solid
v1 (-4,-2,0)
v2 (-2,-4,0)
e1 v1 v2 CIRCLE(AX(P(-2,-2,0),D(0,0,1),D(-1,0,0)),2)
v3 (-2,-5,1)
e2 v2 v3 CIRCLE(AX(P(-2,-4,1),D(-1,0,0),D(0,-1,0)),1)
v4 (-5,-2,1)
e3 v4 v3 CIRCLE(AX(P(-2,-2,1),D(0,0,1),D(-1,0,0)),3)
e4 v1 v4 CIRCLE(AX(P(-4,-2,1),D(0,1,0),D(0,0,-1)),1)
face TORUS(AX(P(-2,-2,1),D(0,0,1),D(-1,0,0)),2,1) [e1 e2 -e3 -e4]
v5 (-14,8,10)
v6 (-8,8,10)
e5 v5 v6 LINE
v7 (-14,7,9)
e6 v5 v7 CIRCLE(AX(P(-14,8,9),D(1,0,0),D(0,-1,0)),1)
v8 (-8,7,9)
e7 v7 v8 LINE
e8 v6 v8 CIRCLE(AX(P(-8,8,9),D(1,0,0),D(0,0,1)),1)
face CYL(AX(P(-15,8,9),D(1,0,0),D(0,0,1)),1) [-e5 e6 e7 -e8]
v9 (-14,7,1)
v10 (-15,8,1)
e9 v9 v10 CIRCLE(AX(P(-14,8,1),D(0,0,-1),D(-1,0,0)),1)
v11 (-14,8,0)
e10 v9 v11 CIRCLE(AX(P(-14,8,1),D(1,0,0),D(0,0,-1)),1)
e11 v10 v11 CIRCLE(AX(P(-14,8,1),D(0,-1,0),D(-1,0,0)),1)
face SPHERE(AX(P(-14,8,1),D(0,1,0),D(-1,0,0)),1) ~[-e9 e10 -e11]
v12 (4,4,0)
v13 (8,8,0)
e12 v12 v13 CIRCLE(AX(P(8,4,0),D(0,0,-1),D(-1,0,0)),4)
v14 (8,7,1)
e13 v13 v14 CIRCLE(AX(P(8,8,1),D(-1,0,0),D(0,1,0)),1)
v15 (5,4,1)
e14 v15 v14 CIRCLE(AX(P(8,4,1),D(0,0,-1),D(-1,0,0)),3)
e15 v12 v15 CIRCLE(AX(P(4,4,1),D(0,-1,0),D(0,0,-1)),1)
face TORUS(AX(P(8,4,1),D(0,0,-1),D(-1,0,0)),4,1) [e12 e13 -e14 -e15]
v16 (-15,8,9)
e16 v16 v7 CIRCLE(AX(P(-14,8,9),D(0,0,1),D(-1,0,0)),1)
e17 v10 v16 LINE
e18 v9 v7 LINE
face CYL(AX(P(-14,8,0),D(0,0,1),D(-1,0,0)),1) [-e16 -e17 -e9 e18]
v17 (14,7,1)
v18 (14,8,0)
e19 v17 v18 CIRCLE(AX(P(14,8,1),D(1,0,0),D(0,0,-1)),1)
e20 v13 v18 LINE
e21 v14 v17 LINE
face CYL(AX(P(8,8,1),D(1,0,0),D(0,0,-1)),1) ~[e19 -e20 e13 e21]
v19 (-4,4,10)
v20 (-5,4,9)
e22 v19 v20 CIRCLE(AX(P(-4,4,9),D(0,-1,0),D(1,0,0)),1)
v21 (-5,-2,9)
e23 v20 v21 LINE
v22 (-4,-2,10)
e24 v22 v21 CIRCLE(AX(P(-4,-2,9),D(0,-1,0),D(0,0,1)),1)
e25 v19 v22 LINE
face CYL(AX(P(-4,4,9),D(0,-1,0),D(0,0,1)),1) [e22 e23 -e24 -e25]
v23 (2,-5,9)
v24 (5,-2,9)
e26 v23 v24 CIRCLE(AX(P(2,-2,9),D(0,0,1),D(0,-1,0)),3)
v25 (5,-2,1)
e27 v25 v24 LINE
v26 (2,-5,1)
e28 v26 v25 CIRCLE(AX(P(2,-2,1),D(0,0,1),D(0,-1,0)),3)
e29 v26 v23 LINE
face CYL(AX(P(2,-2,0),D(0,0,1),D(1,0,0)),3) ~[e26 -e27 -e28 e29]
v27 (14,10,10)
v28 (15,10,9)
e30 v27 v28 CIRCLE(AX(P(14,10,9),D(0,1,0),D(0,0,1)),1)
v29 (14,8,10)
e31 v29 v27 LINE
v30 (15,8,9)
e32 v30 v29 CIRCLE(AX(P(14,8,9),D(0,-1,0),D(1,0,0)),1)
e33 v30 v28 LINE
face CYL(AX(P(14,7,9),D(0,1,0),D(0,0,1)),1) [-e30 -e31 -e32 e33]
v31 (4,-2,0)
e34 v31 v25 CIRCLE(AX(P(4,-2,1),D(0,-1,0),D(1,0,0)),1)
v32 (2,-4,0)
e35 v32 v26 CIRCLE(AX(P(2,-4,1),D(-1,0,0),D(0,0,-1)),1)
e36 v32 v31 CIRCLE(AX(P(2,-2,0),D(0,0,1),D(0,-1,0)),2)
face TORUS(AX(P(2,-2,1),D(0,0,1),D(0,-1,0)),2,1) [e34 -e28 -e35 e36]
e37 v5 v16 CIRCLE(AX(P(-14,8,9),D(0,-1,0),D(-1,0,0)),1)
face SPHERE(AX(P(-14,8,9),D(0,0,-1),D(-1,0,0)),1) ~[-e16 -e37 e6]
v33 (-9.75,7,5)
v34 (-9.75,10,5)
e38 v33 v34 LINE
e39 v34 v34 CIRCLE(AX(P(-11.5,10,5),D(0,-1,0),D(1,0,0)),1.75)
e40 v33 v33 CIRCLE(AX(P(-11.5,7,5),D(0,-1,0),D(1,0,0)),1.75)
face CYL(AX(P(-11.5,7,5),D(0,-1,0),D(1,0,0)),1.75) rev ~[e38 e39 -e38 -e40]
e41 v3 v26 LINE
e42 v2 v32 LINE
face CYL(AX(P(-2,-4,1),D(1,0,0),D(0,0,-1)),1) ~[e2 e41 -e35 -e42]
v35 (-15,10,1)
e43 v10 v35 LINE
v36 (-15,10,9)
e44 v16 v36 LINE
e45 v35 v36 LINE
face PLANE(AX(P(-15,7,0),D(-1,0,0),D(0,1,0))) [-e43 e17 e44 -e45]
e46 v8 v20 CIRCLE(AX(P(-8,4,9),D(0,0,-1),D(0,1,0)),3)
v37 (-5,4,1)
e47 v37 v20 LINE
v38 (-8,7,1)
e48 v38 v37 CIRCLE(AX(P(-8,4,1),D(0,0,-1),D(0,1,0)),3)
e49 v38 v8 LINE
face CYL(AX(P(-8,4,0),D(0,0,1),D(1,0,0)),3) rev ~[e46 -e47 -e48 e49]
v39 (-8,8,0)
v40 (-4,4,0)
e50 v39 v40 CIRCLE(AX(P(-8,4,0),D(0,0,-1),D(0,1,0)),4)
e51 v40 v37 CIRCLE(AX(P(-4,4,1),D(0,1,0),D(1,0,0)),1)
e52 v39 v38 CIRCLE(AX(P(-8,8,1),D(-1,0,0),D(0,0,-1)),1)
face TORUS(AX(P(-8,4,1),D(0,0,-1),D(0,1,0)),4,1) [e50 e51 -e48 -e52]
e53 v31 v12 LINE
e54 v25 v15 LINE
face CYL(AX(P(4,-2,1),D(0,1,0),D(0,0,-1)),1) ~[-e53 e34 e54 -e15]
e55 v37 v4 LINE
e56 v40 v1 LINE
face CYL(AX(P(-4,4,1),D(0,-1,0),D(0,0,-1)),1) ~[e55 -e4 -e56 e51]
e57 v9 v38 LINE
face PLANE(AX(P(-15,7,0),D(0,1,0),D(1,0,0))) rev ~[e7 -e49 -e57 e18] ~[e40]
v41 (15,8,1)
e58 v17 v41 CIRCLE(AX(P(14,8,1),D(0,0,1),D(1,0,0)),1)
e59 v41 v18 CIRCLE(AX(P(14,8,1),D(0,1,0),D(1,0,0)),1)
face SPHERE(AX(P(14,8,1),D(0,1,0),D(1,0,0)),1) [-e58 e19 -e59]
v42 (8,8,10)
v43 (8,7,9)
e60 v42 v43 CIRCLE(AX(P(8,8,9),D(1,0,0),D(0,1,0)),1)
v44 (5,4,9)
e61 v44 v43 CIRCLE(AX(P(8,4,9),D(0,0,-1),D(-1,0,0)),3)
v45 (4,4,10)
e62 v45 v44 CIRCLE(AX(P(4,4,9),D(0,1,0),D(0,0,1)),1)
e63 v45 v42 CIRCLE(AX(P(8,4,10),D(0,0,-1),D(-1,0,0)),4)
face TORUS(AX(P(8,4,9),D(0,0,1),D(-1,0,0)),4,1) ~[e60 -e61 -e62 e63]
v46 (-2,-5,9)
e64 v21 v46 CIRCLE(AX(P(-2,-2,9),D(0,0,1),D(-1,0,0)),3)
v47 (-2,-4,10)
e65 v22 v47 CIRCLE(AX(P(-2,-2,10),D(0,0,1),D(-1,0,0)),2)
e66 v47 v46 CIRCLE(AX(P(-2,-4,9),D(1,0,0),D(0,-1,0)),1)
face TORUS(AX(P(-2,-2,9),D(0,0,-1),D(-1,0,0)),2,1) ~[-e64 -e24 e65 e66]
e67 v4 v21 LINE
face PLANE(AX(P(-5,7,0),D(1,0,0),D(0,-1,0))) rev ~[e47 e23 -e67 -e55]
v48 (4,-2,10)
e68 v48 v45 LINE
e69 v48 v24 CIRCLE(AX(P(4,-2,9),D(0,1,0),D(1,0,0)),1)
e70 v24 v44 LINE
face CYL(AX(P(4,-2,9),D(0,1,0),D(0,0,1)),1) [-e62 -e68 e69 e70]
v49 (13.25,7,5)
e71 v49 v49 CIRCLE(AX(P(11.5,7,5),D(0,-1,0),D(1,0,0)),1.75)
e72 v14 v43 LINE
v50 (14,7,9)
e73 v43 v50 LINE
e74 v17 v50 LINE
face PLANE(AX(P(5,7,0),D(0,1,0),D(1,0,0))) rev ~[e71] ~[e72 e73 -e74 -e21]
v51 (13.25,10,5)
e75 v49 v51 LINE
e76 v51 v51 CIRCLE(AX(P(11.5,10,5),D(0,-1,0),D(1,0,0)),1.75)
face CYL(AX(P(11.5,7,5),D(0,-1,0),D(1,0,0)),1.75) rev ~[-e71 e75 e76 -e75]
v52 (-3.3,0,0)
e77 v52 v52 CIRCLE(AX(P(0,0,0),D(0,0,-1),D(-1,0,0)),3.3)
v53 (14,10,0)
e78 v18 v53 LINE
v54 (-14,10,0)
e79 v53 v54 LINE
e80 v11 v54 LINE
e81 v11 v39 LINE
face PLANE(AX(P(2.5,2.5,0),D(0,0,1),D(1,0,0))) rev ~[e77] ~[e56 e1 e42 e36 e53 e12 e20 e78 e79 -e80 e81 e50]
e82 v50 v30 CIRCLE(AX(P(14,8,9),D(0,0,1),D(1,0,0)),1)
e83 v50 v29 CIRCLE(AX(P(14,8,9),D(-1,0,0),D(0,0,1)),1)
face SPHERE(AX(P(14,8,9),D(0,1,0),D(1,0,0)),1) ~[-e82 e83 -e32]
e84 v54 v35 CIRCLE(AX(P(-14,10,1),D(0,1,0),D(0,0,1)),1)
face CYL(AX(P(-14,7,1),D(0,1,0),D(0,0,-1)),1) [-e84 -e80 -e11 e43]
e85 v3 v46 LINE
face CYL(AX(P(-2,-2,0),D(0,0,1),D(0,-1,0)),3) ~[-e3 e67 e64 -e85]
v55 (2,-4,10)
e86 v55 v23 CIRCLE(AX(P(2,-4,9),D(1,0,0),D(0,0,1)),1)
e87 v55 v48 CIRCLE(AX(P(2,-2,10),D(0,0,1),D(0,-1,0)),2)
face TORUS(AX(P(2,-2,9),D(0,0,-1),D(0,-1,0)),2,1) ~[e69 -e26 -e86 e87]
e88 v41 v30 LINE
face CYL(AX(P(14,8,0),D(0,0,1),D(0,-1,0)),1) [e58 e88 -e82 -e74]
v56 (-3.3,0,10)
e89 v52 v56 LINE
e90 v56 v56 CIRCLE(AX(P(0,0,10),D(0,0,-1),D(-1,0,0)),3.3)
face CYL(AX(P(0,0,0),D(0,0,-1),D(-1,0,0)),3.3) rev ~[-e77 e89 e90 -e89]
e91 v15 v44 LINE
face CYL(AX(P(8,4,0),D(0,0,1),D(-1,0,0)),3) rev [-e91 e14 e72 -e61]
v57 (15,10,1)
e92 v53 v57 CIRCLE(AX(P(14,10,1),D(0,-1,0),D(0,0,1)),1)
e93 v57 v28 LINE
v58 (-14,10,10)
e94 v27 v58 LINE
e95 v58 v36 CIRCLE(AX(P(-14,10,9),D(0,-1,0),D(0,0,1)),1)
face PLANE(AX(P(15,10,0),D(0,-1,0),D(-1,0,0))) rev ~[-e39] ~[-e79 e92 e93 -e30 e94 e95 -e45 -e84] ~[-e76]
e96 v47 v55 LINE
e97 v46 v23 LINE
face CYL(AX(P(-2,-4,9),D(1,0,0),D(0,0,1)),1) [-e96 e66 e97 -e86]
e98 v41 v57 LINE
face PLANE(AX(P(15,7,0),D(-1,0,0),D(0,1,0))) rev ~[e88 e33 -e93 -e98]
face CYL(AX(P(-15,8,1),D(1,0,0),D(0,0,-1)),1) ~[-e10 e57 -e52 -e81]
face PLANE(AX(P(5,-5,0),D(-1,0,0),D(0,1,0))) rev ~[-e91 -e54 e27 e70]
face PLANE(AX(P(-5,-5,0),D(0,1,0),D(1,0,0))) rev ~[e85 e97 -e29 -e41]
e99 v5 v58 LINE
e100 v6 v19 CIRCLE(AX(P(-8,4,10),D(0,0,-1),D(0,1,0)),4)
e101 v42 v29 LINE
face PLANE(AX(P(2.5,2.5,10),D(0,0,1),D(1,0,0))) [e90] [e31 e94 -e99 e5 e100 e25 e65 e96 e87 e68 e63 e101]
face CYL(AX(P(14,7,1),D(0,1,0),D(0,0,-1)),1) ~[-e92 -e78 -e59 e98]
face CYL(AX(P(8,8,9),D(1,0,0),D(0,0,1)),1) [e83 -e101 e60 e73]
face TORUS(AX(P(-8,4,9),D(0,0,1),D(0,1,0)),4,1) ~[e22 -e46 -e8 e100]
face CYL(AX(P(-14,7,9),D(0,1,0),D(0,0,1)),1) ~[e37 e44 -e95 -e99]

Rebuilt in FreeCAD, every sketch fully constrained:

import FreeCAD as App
import Part
import Sketcher


def edges_at(feature, points):
    """Names of the edges that pass closest to the given points."""
    edges = feature.Shape.Edges
    near = lambda p: min(range(len(edges)), key=lambda i: edges[i].distToShape(Part.Vertex(*p))[0])
    return sorted({f"Edge{near(p) + 1}" for p in points})

doc = App.newDocument("Part")
body = doc.addObject("PartDesign::Body", "Body")

sketch1 = doc.addObject("Sketcher::SketchObject", "Sketch")
body.addObject(sketch1)
sketch1.AttachmentSupport = (doc.XY_Plane, [""])
sketch1.MapMode = "FlatFace"
sketch1.addGeometry([
    Part.LineSegment(App.Vector(5, -5, 0), App.Vector(5, 7, 0)),
    Part.LineSegment(App.Vector(5, 7, 0), App.Vector(15, 7, 0)),
    Part.LineSegment(App.Vector(15, 7, 0), App.Vector(15, 10, 0)),
    Part.LineSegment(App.Vector(15, 10, 0), App.Vector(-15, 10, 0)),
    Part.LineSegment(App.Vector(-15, 10, 0), App.Vector(-15, 7, 0)),
    Part.LineSegment(App.Vector(-15, 7, 0), App.Vector(-5, 7, 0)),
    Part.LineSegment(App.Vector(-5, 7, 0), App.Vector(-5, -5, 0)),
    Part.LineSegment(App.Vector(-5, -5, 0), App.Vector(5, -5, 0)),
], False)
sketch1.addConstraint([
    Sketcher.Constraint("Coincident", 0, 2, 1, 1),
    Sketcher.Constraint("Coincident", 1, 2, 2, 1),
    Sketcher.Constraint("Coincident", 2, 2, 3, 1),
    Sketcher.Constraint("Coincident", 3, 2, 4, 1),
    Sketcher.Constraint("Coincident", 4, 2, 5, 1),
    Sketcher.Constraint("Coincident", 5, 2, 6, 1),
    Sketcher.Constraint("Coincident", 6, 2, 7, 1),
    Sketcher.Constraint("Coincident", 7, 2, 0, 1),
    Sketcher.Constraint("Vertical", 0),
    Sketcher.Constraint("Horizontal", 1),
    Sketcher.Constraint("Vertical", 2),
    Sketcher.Constraint("Horizontal", 3),
    Sketcher.Constraint("Vertical", 4),
    Sketcher.Constraint("Horizontal", 5),
    Sketcher.Constraint("Vertical", 6),
    Sketcher.Constraint("Horizontal", 7),
    Sketcher.Constraint("Symmetric", 1, 2, 4, 2, -2),
    Sketcher.Constraint("Equal", 1, 5),
    Sketcher.Constraint("Equal", 5, 7),
    Sketcher.Constraint("DistanceX", 1, 1, 1, 2, 10.0),
    Sketcher.Constraint("DistanceY", 0, 1, 0, 2, 12.0),
    Sketcher.Constraint("DistanceY", 2, 1, 2, 2, 3.0),
    Sketcher.Constraint("DistanceY", -1, 1, 0, 2, 7.0),
])
pad1 = doc.addObject("PartDesign::Pad", "Pad")
body.addObject(pad1)
pad1.Profile = sketch1
pad1.Length = 10

sketch2 = doc.addObject("Sketcher::SketchObject", "Sketch001")
body.addObject(sketch2)
sketch2.AttachmentSupport = (doc.XY_Plane, [""])
sketch2.MapMode = "FlatFace"
sketch2.addGeometry(Part.Circle(App.Vector(0, 0, 0), App.Vector(0, 0, 1), 3.3), False)
sketch2.addConstraint([
    Sketcher.Constraint("Coincident", 0, 3, -1, 1),
    Sketcher.Constraint("Diameter", 0, 6.6),
])
pocket1 = doc.addObject("PartDesign::Pocket", "Pocket")
body.addObject(pocket1)
pocket1.Profile = sketch2
pocket1.Type = "ThroughAll"
pocket1.Reversed = True

sketch3 = doc.addObject("Sketcher::SketchObject", "Sketch002")
body.addObject(sketch3)
sketch3.AttachmentSupport = (doc.XZ_Plane, [""])
sketch3.MapMode = "FlatFace"
sketch3.AttachmentOffset = App.Placement(App.Vector(0, 0, -7), App.Rotation())
sketch3.addGeometry([
    Part.Circle(App.Vector(-11.5, 5, 0), App.Vector(0, 0, 1), 1.75),
    Part.Circle(App.Vector(11.5, 5, 0), App.Vector(0, 0, 1), 1.75),
], False)
sketch3.addConstraint([
    Sketcher.Constraint("Equal", 0, 1),
    Sketcher.Constraint("Symmetric", 0, 3, 1, 3, -2),
    Sketcher.Constraint("Diameter", 0, 3.5),
    Sketcher.Constraint("DistanceY", -1, 1, 0, 3, 5.0),
    Sketcher.Constraint("DistanceX", 0, 3, 1, 3, 23.0),
])
pocket2 = doc.addObject("PartDesign::Pocket", "Pocket001")
body.addObject(pocket2)
pocket2.Profile = sketch3
pocket2.Type = "ThroughAll"
doc.recompute()

fillet = doc.addObject("PartDesign::Fillet", "Fillet")
body.addObject(fillet)
fillet.Base = (pocket2, edges_at(pocket2, [
    (5, -5, 5),
    (-5, -5, 5),
    (-5, 7, 5),
    (5, 7, 5),
]))
fillet.Radius = 3
doc.recompute()

fillet2 = doc.addObject("PartDesign::Fillet", "Fillet001")
body.addObject(fillet2)
fillet2.Base = (fillet, edges_at(fillet, [
    (-15, 8.5, 0),
    (15, 8.5, 0),
    (15, 8.5, 10),
    (-15, 7, 5),
    (15, 7, 5),
    (-15, 8.5, 10),
    (-5, 1, 0),
    (-5, 1, 10),
    (-11.5, 7, 0),
    (-11.5, 7, 10),
    (11.5, 7, 0),
    (11.5, 7, 10),
    (5, 1, 0),
    (5, 1, 10),
    (0, -5, 0),
    (0, -5, 10),
    (4.121, -4.121, 0),
    (-4.121, -4.121, 0),
    (4.121, -4.121, 10),
    (-4.121, -4.121, 10),
    (-5.879, 6.121, 0),
    (-5.879, 6.121, 10),
    (5.879, 6.121, 0),
    (5.879, 6.121, 10),
]))
fillet2.Radius = 1

doc.recompute()
